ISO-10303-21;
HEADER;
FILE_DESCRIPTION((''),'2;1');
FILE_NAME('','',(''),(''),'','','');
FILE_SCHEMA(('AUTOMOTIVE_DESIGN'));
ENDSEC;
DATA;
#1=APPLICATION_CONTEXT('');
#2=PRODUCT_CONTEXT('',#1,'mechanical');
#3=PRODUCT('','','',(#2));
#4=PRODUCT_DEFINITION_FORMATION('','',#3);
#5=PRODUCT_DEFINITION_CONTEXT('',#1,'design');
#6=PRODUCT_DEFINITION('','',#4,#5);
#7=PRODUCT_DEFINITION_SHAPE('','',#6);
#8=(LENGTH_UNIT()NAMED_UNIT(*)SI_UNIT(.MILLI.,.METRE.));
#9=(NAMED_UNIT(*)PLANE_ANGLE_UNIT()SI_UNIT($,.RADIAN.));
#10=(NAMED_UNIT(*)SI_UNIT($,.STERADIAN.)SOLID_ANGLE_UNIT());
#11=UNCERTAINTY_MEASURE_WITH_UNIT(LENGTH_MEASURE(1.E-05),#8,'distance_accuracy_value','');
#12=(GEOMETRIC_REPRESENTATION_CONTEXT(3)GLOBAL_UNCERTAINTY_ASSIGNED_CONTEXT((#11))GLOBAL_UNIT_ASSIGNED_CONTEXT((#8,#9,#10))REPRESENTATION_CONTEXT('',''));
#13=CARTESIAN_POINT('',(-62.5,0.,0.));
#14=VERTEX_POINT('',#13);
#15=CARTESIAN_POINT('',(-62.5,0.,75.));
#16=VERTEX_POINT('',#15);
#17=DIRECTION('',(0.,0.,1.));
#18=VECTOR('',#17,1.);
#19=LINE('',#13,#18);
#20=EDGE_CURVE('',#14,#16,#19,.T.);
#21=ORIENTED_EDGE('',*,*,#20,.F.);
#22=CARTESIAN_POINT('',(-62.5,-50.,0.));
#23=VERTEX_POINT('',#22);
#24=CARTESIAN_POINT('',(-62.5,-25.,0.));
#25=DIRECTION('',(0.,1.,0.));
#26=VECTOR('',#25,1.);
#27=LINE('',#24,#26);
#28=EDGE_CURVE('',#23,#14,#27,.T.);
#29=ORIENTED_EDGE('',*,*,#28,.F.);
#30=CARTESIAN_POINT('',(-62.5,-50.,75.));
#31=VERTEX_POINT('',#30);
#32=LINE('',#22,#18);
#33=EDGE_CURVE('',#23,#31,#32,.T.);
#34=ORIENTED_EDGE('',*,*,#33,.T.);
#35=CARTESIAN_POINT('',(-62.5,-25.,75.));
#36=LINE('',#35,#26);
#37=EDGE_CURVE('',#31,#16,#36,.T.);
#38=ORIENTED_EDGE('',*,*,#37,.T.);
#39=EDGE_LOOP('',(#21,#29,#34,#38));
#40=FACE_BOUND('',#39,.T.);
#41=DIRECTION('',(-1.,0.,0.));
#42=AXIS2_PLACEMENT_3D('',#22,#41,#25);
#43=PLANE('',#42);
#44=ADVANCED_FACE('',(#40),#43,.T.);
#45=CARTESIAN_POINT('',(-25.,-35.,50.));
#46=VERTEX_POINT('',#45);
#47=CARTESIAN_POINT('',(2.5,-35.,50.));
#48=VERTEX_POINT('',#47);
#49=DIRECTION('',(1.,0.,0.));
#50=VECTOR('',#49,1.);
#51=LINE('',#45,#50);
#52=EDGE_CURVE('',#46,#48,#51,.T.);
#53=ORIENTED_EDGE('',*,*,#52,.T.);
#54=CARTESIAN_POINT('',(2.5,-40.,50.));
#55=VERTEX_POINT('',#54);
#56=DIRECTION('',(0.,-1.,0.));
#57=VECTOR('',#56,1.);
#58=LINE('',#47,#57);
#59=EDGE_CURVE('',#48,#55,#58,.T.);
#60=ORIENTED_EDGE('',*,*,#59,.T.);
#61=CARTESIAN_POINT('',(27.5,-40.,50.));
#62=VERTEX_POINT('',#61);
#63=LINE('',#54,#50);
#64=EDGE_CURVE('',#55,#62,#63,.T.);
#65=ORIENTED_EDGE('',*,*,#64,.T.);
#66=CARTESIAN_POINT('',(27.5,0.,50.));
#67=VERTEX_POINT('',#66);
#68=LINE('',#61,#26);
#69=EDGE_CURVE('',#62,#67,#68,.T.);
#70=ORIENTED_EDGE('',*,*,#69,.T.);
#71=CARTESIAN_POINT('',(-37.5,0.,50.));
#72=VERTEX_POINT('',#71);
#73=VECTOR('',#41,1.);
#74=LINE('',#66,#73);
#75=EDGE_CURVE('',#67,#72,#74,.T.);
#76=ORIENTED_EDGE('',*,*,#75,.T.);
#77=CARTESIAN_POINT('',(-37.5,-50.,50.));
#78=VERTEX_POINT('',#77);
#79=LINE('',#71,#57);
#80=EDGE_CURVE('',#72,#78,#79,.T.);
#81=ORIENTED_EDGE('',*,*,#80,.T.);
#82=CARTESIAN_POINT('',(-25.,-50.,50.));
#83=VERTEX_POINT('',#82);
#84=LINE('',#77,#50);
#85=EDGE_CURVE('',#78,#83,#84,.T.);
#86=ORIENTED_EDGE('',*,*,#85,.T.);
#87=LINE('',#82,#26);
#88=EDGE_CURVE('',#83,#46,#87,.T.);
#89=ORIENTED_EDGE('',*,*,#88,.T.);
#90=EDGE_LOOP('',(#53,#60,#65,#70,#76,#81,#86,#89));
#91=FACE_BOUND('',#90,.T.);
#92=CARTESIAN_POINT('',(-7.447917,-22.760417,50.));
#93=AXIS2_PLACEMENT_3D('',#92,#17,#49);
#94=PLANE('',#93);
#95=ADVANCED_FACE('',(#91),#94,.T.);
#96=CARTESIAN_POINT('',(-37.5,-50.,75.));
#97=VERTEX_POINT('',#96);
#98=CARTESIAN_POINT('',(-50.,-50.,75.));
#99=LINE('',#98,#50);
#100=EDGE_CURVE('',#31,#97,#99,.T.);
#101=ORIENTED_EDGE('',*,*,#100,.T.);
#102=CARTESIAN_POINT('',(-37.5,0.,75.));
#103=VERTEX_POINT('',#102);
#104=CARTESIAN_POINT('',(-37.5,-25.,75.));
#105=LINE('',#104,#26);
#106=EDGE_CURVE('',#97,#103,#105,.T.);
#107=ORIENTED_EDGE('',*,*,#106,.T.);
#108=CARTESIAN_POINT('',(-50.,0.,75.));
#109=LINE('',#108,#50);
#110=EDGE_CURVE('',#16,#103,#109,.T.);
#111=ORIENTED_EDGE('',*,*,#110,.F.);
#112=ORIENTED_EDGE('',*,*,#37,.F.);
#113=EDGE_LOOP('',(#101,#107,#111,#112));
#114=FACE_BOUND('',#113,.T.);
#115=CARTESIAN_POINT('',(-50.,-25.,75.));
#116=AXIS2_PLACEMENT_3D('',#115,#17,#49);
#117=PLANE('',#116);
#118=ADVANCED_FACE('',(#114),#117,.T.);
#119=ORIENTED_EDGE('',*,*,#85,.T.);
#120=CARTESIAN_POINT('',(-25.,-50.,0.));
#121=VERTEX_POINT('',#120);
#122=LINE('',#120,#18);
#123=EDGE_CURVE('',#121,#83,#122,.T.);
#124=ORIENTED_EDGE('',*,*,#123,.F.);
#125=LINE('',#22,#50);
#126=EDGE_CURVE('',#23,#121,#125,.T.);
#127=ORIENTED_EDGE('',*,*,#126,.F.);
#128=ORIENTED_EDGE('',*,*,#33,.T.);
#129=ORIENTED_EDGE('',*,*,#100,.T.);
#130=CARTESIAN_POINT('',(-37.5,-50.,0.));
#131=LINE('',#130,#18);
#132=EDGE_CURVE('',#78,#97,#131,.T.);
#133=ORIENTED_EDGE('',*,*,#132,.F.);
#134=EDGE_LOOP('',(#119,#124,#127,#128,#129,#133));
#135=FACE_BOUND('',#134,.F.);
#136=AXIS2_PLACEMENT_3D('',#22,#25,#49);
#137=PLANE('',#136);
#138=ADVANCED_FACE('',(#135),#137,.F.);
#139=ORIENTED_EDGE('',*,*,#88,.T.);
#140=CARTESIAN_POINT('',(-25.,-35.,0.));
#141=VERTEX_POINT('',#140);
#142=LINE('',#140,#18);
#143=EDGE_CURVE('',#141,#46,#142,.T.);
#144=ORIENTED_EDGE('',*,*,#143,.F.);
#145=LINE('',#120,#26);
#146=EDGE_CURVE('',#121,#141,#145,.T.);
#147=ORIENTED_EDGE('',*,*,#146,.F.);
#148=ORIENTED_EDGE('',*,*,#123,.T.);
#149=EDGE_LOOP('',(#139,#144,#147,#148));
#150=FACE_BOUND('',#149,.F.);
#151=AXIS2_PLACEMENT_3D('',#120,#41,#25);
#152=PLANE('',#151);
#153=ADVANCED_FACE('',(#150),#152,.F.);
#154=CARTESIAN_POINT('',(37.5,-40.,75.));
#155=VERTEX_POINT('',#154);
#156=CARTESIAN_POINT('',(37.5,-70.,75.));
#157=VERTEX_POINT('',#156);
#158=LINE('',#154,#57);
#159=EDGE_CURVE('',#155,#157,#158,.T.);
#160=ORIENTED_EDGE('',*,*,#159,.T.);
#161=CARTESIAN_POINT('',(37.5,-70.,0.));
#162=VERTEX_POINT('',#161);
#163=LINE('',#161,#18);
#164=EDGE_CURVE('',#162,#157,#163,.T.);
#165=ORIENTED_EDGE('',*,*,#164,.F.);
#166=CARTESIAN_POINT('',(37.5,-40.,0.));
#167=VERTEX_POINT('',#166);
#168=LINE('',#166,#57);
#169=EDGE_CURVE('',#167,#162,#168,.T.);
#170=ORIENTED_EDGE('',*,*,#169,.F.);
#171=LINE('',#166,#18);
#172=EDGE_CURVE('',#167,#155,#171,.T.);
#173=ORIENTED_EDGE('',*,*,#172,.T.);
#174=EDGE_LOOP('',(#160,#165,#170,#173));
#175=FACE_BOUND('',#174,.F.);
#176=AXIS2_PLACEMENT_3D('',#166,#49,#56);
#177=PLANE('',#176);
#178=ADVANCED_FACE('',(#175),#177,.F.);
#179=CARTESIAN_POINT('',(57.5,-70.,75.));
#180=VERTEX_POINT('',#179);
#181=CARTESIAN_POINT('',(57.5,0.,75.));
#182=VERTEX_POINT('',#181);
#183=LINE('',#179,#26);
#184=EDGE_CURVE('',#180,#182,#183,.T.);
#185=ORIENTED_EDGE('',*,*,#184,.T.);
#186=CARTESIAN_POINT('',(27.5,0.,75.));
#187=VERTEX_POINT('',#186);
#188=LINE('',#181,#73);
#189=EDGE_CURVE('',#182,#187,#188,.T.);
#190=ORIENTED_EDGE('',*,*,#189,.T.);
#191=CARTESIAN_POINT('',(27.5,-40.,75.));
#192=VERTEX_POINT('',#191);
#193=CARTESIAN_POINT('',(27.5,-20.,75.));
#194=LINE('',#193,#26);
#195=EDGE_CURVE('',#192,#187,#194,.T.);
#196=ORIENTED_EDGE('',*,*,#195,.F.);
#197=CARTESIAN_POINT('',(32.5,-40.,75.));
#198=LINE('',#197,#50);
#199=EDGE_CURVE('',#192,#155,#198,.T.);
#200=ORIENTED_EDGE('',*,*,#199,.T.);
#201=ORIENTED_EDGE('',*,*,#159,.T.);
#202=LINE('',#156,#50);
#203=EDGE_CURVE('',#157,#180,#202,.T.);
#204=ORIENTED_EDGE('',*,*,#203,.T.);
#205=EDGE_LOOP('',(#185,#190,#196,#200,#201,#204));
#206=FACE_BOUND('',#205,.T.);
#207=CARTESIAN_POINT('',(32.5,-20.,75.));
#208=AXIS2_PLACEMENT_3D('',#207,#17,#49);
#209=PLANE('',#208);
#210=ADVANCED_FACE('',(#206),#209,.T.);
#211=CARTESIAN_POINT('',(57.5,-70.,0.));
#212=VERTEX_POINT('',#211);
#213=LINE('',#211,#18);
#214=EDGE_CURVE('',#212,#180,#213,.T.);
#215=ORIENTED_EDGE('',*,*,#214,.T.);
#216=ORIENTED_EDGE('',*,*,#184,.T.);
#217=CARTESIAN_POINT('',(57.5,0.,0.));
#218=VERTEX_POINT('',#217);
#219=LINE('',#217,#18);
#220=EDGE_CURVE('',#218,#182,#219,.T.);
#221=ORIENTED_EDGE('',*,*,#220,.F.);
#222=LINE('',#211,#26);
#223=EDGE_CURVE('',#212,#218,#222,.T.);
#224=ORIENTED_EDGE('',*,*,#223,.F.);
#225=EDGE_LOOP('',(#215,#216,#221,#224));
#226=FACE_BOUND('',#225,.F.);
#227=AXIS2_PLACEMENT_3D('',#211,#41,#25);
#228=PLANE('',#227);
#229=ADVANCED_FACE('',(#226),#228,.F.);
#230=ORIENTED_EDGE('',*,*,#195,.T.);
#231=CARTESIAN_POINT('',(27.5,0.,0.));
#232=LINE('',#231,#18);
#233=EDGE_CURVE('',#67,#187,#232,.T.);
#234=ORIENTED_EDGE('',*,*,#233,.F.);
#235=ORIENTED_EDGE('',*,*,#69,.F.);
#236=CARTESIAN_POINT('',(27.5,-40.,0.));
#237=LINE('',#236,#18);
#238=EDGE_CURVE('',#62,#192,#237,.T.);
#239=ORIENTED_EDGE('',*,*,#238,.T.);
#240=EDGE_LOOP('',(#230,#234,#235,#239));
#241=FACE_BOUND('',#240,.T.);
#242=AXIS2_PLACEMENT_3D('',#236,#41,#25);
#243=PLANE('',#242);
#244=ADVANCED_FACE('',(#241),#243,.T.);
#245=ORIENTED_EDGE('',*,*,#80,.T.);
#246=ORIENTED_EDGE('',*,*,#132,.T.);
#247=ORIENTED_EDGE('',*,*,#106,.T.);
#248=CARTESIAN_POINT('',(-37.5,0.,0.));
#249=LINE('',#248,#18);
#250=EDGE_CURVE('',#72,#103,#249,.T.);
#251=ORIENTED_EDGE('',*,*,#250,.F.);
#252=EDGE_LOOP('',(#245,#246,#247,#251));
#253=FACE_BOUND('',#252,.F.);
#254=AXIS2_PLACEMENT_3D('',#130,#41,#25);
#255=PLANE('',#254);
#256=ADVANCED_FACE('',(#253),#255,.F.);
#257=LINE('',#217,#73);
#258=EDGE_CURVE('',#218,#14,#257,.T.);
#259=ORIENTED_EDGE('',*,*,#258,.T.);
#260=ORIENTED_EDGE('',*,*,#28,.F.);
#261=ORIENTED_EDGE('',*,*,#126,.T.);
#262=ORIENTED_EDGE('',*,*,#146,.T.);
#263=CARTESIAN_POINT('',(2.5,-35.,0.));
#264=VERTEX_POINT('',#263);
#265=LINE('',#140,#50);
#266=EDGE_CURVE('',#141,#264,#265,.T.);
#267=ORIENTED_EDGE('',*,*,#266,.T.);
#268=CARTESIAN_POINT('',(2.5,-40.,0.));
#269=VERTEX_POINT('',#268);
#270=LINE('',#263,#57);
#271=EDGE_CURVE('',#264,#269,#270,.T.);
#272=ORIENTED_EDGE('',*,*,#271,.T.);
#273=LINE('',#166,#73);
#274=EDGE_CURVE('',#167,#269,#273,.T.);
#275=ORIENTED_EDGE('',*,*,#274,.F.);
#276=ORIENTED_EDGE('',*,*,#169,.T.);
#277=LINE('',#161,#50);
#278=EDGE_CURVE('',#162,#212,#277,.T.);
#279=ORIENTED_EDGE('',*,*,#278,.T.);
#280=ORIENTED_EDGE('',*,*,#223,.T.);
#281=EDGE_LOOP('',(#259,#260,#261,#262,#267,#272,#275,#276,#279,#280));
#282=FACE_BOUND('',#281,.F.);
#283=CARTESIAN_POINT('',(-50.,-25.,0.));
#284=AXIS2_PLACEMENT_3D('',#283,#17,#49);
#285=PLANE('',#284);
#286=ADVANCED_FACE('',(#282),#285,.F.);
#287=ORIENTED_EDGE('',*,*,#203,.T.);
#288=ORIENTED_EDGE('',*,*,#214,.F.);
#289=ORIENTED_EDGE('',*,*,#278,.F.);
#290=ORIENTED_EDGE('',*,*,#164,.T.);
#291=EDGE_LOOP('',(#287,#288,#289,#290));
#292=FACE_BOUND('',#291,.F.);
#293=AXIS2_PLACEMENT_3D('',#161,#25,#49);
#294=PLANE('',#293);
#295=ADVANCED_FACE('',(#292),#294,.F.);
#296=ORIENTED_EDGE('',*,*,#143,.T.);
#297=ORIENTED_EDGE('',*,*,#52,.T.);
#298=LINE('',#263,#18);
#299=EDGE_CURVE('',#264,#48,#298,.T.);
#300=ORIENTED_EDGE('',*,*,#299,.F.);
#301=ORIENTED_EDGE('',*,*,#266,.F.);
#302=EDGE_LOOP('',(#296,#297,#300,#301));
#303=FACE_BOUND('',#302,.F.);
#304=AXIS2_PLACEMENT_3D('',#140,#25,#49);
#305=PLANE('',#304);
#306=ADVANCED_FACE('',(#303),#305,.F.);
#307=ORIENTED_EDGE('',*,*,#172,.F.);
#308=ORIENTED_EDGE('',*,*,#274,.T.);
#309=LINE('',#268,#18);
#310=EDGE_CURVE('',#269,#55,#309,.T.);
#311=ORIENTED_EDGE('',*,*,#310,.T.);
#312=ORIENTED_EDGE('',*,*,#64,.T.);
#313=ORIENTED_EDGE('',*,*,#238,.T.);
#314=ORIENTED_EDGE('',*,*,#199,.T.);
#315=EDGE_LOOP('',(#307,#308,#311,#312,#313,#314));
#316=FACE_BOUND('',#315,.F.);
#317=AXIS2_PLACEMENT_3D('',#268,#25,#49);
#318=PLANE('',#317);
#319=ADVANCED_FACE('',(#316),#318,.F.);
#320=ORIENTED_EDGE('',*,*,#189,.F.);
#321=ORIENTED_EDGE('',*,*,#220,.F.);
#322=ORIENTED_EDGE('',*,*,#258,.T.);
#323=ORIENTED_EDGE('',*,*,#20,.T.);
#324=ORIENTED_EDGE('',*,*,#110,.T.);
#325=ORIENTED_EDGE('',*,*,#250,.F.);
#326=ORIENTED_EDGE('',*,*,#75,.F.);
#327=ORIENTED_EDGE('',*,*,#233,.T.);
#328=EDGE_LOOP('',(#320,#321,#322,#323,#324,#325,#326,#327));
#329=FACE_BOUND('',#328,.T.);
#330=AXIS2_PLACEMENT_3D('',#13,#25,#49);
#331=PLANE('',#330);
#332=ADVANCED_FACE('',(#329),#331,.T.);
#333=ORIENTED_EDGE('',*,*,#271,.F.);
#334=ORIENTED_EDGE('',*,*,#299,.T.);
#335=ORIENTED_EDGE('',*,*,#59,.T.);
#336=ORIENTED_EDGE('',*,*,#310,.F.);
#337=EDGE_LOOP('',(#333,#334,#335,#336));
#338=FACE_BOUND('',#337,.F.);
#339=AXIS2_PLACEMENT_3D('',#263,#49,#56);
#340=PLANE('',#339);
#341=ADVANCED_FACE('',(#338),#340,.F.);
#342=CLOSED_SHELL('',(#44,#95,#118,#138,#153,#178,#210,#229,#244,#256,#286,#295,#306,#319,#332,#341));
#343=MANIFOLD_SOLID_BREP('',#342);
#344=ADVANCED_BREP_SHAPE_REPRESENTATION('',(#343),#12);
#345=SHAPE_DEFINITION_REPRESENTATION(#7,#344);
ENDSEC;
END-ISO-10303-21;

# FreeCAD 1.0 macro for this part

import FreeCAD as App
import Part
import Sketcher


def add_polygon(sketch, points):
    """Adds a closed chain of lines whose ends are joined by coincident constraints."""
    first, n = sketch.GeometryCount, len(points)
    for a, b in zip(points, points[1:] + points[:1]):
        sketch.addGeometry(Part.LineSegment(App.Vector(*a, 0), App.Vector(*b, 0)), False)
    for i in range(n):
        sketch.addConstraint(Sketcher.Constraint("Coincident", first + i, 2, first + (i + 1) % n, 1))

doc = App.newDocument("Part")
params = doc.addObject("Spreadsheet::Sheet", "Params")
for row, (alias, value) in enumerate([
    ("sketch1_width", "65 mm"),
    ("sketch1_width2", "25 mm"),
    ("sketch1_height", "50 mm"),
    ("sketch1_height2", "15 mm"),
    ("sketch1_height3", "5 mm"),
    ("pad1_length", "50 mm"),
    ("sketch2_width", "25 mm"),
    ("sketch2_width2", "10 mm"),
    ("sketch2_width3", "20 mm"),
    ("sketch2_height", "50 mm"),
    ("sketch2_height2", "40 mm"),
    ("pad2_length", "75 mm"),
], start=1):
    params.set(f"A{row}", alias)
    params.set(f"B{row}", "=" + value)
    params.setAlias(f"B{row}", alias)

body = doc.addObject("PartDesign::Body", "Body")

# Sketch on XY plane
sketch1 = body.newObject("Sketcher::SketchObject", "Sketch")
sketch1.AttachmentSupport = (doc.getObject("XY_Plane"), [""])
sketch1.MapMode = "FlatFace"
add_polygon(sketch1, [(27.5, 0), (-37.5, 0), (-37.5, -50), (-25, -50), (-25, -35), (2.5, -35), (2.5, -40), (27.5, -40)])  # lines 0-7
sketch1.addConstraint(Sketcher.Constraint("Horizontal", 0))
sketch1.addConstraint(Sketcher.Constraint("Vertical", 1))
sketch1.addConstraint(Sketcher.Constraint("Horizontal", 2))
sketch1.addConstraint(Sketcher.Constraint("Vertical", 3))
sketch1.addConstraint(Sketcher.Constraint("Horizontal", 4))
sketch1.addConstraint(Sketcher.Constraint("Vertical", 5))
sketch1.addConstraint(Sketcher.Constraint("Horizontal", 6))
sketch1.addConstraint(Sketcher.Constraint("Vertical", 7))
sketch1.addConstraint(Sketcher.Constraint("PointOnObject", 0, 2, -1))
sketch1.addConstraint(Sketcher.Constraint("DistanceX", 0, 2, 0, 1, 65.0))
sketch1.addConstraint(Sketcher.Constraint("DistanceX", 6, 1, 6, 2, 25.0))
sketch1.addConstraint(Sketcher.Constraint("DistanceY", 1, 2, 1, 1, 50.0))
sketch1.addConstraint(Sketcher.Constraint("DistanceY", 3, 1, 3, 2, 15.0))
sketch1.addConstraint(Sketcher.Constraint("DistanceY", 5, 2, 5, 1, 5.0))
sketch1.addConstraint(Sketcher.Constraint("DistanceX", 2, 1, 2, 2, 12.5))
sketch1.addConstraint(Sketcher.Constraint("DistanceX", 2, 2, -1, 1, 25.0))
sketch1.setExpression("Constraints[17]", "Params.sketch1_width")
sketch1.setExpression("Constraints[18]", "Params.sketch1_width2")
sketch1.setExpression("Constraints[19]", "Params.sketch1_height")
sketch1.setExpression("Constraints[20]", "Params.sketch1_height2")
sketch1.setExpression("Constraints[21]", "Params.sketch1_height3")
pad1 = body.newObject("PartDesign::Pad", "Pad")
pad1.Profile = sketch1
pad1.setExpression("Length", "Params.pad1_length")

# Sketch on XY plane
sketch2 = body.newObject("Sketcher::SketchObject", "Sketch001")
sketch2.AttachmentSupport = (doc.getObject("XY_Plane"), [""])
sketch2.MapMode = "FlatFace"
add_polygon(sketch2, [(-62.5, 0), (-62.5, -50), (-37.5, -50), (-37.5, 0)])  # lines 0-3
add_polygon(sketch2, [(27.5, 0), (27.5, -40), (37.5, -40), (37.5, -70), (57.5, -70), (57.5, 0)])  # lines 4-9
sketch2.addConstraint(Sketcher.Constraint("Vertical", 0))
sketch2.addConstraint(Sketcher.Constraint("Horizontal", 1))
sketch2.addConstraint(Sketcher.Constraint("Vertical", 2))
sketch2.addConstraint(Sketcher.Constraint("Horizontal", 3))
sketch2.addConstraint(Sketcher.Constraint("Vertical", 4))
sketch2.addConstraint(Sketcher.Constraint("Horizontal", 5))
sketch2.addConstraint(Sketcher.Constraint("Vertical", 6))
sketch2.addConstraint(Sketcher.Constraint("Horizontal", 7))
sketch2.addConstraint(Sketcher.Constraint("Vertical", 8))
sketch2.addConstraint(Sketcher.Constraint("Horizontal", 9))
sketch2.addConstraint(Sketcher.Constraint("PointOnObject", 2, 2, -1))
sketch2.addConstraint(Sketcher.Constraint("PointOnObject", 8, 2, -1))
sketch2.addConstraint(Sketcher.Constraint("Equal", 9, 6))
sketch2.addConstraint(Sketcher.Constraint("DistanceX", 1, 1, 1, 2, 25.0))
sketch2.addConstraint(Sketcher.Constraint("DistanceX", 5, 1, 5, 2, 10.0))
sketch2.addConstraint(Sketcher.Constraint("DistanceX", 7, 1, 7, 2, 20.0))
sketch2.addConstraint(Sketcher.Constraint("DistanceY", 0, 2, 0, 1, 50.0))
sketch2.addConstraint(Sketcher.Constraint("DistanceY", 4, 2, 4, 1, 40.0))
sketch2.addConstraint(Sketcher.Constraint("DistanceX", 1, 2, 4, 2, 65.0))
sketch2.addConstraint(Sketcher.Constraint("DistanceX", 0, 2, -1, 1, 62.5))
sketch2.setExpression("Constraints[23]", "Params.sketch2_width")
sketch2.setExpression("Constraints[24]", "Params.sketch2_width2")
sketch2.setExpression("Constraints[25]", "Params.sketch2_width3")
sketch2.setExpression("Constraints[26]", "Params.sketch2_height")
sketch2.setExpression("Constraints[27]", "Params.sketch2_height2")
pad2 = body.newObject("PartDesign::Pad", "Pad001")
pad2.Profile = sketch2
pad2.setExpression("Length", "Params.pad2_length")

doc.recompute()
